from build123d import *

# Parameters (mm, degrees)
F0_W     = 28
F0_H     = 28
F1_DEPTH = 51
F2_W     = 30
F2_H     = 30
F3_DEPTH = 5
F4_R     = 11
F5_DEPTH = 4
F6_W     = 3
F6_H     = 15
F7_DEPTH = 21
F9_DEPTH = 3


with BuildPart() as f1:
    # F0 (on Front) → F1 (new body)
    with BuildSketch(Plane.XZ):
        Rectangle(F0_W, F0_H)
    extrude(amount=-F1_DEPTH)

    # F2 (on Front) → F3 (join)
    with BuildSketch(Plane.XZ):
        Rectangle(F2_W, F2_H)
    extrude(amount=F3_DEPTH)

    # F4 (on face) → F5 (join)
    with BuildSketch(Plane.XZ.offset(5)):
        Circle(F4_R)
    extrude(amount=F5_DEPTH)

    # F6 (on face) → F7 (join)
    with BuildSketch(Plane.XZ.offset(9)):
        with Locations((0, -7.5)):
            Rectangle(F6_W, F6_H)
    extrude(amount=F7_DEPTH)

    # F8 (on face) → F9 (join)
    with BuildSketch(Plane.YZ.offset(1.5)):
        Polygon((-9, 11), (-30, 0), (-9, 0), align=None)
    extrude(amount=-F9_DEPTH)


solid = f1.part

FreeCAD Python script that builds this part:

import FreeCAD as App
import Part
import Sketcher

V = App.Vector

doc = App.newDocument("Part")
body = doc.addObject("PartDesign::Body", "Body")

sketch1 = doc.addObject("Sketcher::SketchObject", "Sketch")
body.addObject(sketch1)
sketch1.AttachmentSupport = (doc.XZ_Plane, [""])
sketch1.MapMode = "FlatFace"
sketch1.addGeometry([
    Part.LineSegment(V(-14, 14, 0), V(-14, -14, 0)),
    Part.LineSegment(V(-14, -14, 0), V(14, -14, 0)),
    Part.LineSegment(V(14, -14, 0), V(14, 14, 0)),
    Part.LineSegment(V(14, 14, 0), V(-14, 14, 0)),
], False)
sketch1.addConstraint([
    Sketcher.Constraint("Coincident", 0, 2, 1, 1),
    Sketcher.Constraint("Coincident", 1, 2, 2, 1),
    Sketcher.Constraint("Coincident", 2, 2, 3, 1),
    Sketcher.Constraint("Coincident", 3, 2, 0, 1),
    Sketcher.Constraint("Vertical", 0),
    Sketcher.Constraint("Horizontal", 1),
    Sketcher.Constraint("Vertical", 2),
    Sketcher.Constraint("Horizontal", 3),
    Sketcher.Constraint("Symmetric", 0, 2, 2, 2, -1, 1),
    Sketcher.Constraint("Equal", 3, 0),
    Sketcher.Constraint("DistanceX", 1, 1, 1, 2, 28.0),
])
pad1 = doc.addObject("PartDesign::Pad", "Pad")
body.addObject(pad1)
pad1.Profile = sketch1
pad1.Length = 51
pad1.Reversed = True

sketch2 = doc.addObject("Sketcher::SketchObject", "Sketch001")
body.addObject(sketch2)
sketch2.AttachmentSupport = (doc.XZ_Plane, [""])
sketch2.MapMode = "FlatFace"
sketch2.addGeometry([
    Part.LineSegment(V(-15, 15, 0), V(-15, -15, 0)),
    Part.LineSegment(V(-15, -15, 0), V(15, -15, 0)),
    Part.LineSegment(V(15, -15, 0), V(15, 15, 0)),
    Part.LineSegment(V(15, 15, 0), V(-15, 15, 0)),
], False)
sketch2.addConstraint([
    Sketcher.Constraint("Coincident", 0, 2, 1, 1),
    Sketcher.Constraint("Coincident", 1, 2, 2, 1),
    Sketcher.Constraint("Coincident", 2, 2, 3, 1),
    Sketcher.Constraint("Coincident", 3, 2, 0, 1),
    Sketcher.Constraint("Vertical", 0),
    Sketcher.Constraint("Horizontal", 1),
    Sketcher.Constraint("Vertical", 2),
    Sketcher.Constraint("Horizontal", 3),
    Sketcher.Constraint("Symmetric", 0, 2, 2, 2, -1, 1),
    Sketcher.Constraint("Equal", 3, 0),
    Sketcher.Constraint("DistanceX", 1, 1, 1, 2, 30.0),
])
pad2 = doc.addObject("PartDesign::Pad", "Pad001")
body.addObject(pad2)
pad2.Profile = sketch2
pad2.Length = 5

sketch3 = doc.addObject("Sketcher::SketchObject", "Sketch002")
body.addObject(sketch3)
sketch3.AttachmentSupport = (doc.XZ_Plane, [""])
sketch3.MapMode = "FlatFace"
sketch3.AttachmentOffset = App.Placement(V(0, 0, 5), App.Rotation())
sketch3.addGeometry(Part.Circle(V(0, 0, 0), V(0, 0, 1), 11), False)
sketch3.addConstraint([
    Sketcher.Constraint("Coincident", 0, 3, -1, 1),
    Sketcher.Constraint("Diameter", 0, 22.0),
])
pad3 = doc.addObject("PartDesign::Pad", "Pad002")
body.addObject(pad3)
pad3.Profile = sketch3
pad3.Length = 4

sketch4 = doc.addObject("Sketcher::SketchObject", "Sketch003")
body.addObject(sketch4)
sketch4.AttachmentSupport = (doc.XZ_Plane, [""])
sketch4.MapMode = "FlatFace"
sketch4.AttachmentOffset = App.Placement(V(0, 0, 9), App.Rotation())
sketch4.addGeometry([
    Part.LineSegment(V(-1.5, 0, 0), V(-1.5, -15, 0)),
    Part.LineSegment(V(-1.5, -15, 0), V(1.5, -15, 0)),
    Part.LineSegment(V(1.5, -15, 0), V(1.5, 0, 0)),
    Part.LineSegment(V(1.5, 0, 0), V(-1.5, 0, 0)),
], False)
sketch4.addConstraint([
    Sketcher.Constraint("Coincident", 0, 2, 1, 1),
    Sketcher.Constraint("Coincident", 1, 2, 2, 1),
    Sketcher.Constraint("Coincident", 2, 2, 3, 1),
    Sketcher.Constraint("Coincident", 3, 2, 0, 1),
    Sketcher.Constraint("Vertical", 0),
    Sketcher.Constraint("Horizontal", 1),
    Sketcher.Constraint("Vertical", 2),
    Sketcher.Constraint("Horizontal", 3),
    Sketcher.Constraint("Symmetric", 2, 2, 3, 2, -1, 1),
    Sketcher.Constraint("DistanceX", 1, 1, 1, 2, 3.0),
    Sketcher.Constraint("DistanceY", 0, 2, 0, 1, 15.0),
])
pad4 = doc.addObject("PartDesign::Pad", "Pad003")
body.addObject(pad4)
pad4.Profile = sketch4
pad4.Length = 21

sketch5 = doc.addObject("Sketcher::SketchObject", "Sketch004")
body.addObject(sketch5)
sketch5.AttachmentSupport = (doc.YZ_Plane, [""])
sketch5.MapMode = "FlatFace"
sketch5.AttachmentOffset = App.Placement(V(0, 0, 1.5), App.Rotation())
sketch5.addGeometry([
    Part.LineSegment(V(-9, 11, 0), V(-30, 0, 0)),
    Part.LineSegment(V(-30, 0, 0), V(-9, 0, 0)),
    Part.LineSegment(V(-9, 0, 0), V(-9, 11, 0)),
], False)
sketch5.addConstraint([
    Sketcher.Constraint("Coincident", 0, 2, 1, 1),
    Sketcher.Constraint("Coincident", 1, 2, 2, 1),
    Sketcher.Constraint("Coincident", 2, 2, 0, 1),
    Sketcher.Constraint("Horizontal", 1),
    Sketcher.Constraint("Vertical", 2),
    Sketcher.Constraint("PointOnObject", 0, 2, -1),
    Sketcher.Constraint("DistanceX", 1, 1, 1, 2, 21.0),
    Sketcher.Constraint("DistanceY", 2, 1, 2, 2, 11.0),
    Sketcher.Constraint("DistanceX", 0, 2, -1, 1, 30.0),
])
pad5 = doc.addObject("PartDesign::Pad", "Pad004")
body.addObject(pad5)
pad5.Profile = sketch5
pad5.Length = 3
pad5.Reversed = True

doc.recompute()
